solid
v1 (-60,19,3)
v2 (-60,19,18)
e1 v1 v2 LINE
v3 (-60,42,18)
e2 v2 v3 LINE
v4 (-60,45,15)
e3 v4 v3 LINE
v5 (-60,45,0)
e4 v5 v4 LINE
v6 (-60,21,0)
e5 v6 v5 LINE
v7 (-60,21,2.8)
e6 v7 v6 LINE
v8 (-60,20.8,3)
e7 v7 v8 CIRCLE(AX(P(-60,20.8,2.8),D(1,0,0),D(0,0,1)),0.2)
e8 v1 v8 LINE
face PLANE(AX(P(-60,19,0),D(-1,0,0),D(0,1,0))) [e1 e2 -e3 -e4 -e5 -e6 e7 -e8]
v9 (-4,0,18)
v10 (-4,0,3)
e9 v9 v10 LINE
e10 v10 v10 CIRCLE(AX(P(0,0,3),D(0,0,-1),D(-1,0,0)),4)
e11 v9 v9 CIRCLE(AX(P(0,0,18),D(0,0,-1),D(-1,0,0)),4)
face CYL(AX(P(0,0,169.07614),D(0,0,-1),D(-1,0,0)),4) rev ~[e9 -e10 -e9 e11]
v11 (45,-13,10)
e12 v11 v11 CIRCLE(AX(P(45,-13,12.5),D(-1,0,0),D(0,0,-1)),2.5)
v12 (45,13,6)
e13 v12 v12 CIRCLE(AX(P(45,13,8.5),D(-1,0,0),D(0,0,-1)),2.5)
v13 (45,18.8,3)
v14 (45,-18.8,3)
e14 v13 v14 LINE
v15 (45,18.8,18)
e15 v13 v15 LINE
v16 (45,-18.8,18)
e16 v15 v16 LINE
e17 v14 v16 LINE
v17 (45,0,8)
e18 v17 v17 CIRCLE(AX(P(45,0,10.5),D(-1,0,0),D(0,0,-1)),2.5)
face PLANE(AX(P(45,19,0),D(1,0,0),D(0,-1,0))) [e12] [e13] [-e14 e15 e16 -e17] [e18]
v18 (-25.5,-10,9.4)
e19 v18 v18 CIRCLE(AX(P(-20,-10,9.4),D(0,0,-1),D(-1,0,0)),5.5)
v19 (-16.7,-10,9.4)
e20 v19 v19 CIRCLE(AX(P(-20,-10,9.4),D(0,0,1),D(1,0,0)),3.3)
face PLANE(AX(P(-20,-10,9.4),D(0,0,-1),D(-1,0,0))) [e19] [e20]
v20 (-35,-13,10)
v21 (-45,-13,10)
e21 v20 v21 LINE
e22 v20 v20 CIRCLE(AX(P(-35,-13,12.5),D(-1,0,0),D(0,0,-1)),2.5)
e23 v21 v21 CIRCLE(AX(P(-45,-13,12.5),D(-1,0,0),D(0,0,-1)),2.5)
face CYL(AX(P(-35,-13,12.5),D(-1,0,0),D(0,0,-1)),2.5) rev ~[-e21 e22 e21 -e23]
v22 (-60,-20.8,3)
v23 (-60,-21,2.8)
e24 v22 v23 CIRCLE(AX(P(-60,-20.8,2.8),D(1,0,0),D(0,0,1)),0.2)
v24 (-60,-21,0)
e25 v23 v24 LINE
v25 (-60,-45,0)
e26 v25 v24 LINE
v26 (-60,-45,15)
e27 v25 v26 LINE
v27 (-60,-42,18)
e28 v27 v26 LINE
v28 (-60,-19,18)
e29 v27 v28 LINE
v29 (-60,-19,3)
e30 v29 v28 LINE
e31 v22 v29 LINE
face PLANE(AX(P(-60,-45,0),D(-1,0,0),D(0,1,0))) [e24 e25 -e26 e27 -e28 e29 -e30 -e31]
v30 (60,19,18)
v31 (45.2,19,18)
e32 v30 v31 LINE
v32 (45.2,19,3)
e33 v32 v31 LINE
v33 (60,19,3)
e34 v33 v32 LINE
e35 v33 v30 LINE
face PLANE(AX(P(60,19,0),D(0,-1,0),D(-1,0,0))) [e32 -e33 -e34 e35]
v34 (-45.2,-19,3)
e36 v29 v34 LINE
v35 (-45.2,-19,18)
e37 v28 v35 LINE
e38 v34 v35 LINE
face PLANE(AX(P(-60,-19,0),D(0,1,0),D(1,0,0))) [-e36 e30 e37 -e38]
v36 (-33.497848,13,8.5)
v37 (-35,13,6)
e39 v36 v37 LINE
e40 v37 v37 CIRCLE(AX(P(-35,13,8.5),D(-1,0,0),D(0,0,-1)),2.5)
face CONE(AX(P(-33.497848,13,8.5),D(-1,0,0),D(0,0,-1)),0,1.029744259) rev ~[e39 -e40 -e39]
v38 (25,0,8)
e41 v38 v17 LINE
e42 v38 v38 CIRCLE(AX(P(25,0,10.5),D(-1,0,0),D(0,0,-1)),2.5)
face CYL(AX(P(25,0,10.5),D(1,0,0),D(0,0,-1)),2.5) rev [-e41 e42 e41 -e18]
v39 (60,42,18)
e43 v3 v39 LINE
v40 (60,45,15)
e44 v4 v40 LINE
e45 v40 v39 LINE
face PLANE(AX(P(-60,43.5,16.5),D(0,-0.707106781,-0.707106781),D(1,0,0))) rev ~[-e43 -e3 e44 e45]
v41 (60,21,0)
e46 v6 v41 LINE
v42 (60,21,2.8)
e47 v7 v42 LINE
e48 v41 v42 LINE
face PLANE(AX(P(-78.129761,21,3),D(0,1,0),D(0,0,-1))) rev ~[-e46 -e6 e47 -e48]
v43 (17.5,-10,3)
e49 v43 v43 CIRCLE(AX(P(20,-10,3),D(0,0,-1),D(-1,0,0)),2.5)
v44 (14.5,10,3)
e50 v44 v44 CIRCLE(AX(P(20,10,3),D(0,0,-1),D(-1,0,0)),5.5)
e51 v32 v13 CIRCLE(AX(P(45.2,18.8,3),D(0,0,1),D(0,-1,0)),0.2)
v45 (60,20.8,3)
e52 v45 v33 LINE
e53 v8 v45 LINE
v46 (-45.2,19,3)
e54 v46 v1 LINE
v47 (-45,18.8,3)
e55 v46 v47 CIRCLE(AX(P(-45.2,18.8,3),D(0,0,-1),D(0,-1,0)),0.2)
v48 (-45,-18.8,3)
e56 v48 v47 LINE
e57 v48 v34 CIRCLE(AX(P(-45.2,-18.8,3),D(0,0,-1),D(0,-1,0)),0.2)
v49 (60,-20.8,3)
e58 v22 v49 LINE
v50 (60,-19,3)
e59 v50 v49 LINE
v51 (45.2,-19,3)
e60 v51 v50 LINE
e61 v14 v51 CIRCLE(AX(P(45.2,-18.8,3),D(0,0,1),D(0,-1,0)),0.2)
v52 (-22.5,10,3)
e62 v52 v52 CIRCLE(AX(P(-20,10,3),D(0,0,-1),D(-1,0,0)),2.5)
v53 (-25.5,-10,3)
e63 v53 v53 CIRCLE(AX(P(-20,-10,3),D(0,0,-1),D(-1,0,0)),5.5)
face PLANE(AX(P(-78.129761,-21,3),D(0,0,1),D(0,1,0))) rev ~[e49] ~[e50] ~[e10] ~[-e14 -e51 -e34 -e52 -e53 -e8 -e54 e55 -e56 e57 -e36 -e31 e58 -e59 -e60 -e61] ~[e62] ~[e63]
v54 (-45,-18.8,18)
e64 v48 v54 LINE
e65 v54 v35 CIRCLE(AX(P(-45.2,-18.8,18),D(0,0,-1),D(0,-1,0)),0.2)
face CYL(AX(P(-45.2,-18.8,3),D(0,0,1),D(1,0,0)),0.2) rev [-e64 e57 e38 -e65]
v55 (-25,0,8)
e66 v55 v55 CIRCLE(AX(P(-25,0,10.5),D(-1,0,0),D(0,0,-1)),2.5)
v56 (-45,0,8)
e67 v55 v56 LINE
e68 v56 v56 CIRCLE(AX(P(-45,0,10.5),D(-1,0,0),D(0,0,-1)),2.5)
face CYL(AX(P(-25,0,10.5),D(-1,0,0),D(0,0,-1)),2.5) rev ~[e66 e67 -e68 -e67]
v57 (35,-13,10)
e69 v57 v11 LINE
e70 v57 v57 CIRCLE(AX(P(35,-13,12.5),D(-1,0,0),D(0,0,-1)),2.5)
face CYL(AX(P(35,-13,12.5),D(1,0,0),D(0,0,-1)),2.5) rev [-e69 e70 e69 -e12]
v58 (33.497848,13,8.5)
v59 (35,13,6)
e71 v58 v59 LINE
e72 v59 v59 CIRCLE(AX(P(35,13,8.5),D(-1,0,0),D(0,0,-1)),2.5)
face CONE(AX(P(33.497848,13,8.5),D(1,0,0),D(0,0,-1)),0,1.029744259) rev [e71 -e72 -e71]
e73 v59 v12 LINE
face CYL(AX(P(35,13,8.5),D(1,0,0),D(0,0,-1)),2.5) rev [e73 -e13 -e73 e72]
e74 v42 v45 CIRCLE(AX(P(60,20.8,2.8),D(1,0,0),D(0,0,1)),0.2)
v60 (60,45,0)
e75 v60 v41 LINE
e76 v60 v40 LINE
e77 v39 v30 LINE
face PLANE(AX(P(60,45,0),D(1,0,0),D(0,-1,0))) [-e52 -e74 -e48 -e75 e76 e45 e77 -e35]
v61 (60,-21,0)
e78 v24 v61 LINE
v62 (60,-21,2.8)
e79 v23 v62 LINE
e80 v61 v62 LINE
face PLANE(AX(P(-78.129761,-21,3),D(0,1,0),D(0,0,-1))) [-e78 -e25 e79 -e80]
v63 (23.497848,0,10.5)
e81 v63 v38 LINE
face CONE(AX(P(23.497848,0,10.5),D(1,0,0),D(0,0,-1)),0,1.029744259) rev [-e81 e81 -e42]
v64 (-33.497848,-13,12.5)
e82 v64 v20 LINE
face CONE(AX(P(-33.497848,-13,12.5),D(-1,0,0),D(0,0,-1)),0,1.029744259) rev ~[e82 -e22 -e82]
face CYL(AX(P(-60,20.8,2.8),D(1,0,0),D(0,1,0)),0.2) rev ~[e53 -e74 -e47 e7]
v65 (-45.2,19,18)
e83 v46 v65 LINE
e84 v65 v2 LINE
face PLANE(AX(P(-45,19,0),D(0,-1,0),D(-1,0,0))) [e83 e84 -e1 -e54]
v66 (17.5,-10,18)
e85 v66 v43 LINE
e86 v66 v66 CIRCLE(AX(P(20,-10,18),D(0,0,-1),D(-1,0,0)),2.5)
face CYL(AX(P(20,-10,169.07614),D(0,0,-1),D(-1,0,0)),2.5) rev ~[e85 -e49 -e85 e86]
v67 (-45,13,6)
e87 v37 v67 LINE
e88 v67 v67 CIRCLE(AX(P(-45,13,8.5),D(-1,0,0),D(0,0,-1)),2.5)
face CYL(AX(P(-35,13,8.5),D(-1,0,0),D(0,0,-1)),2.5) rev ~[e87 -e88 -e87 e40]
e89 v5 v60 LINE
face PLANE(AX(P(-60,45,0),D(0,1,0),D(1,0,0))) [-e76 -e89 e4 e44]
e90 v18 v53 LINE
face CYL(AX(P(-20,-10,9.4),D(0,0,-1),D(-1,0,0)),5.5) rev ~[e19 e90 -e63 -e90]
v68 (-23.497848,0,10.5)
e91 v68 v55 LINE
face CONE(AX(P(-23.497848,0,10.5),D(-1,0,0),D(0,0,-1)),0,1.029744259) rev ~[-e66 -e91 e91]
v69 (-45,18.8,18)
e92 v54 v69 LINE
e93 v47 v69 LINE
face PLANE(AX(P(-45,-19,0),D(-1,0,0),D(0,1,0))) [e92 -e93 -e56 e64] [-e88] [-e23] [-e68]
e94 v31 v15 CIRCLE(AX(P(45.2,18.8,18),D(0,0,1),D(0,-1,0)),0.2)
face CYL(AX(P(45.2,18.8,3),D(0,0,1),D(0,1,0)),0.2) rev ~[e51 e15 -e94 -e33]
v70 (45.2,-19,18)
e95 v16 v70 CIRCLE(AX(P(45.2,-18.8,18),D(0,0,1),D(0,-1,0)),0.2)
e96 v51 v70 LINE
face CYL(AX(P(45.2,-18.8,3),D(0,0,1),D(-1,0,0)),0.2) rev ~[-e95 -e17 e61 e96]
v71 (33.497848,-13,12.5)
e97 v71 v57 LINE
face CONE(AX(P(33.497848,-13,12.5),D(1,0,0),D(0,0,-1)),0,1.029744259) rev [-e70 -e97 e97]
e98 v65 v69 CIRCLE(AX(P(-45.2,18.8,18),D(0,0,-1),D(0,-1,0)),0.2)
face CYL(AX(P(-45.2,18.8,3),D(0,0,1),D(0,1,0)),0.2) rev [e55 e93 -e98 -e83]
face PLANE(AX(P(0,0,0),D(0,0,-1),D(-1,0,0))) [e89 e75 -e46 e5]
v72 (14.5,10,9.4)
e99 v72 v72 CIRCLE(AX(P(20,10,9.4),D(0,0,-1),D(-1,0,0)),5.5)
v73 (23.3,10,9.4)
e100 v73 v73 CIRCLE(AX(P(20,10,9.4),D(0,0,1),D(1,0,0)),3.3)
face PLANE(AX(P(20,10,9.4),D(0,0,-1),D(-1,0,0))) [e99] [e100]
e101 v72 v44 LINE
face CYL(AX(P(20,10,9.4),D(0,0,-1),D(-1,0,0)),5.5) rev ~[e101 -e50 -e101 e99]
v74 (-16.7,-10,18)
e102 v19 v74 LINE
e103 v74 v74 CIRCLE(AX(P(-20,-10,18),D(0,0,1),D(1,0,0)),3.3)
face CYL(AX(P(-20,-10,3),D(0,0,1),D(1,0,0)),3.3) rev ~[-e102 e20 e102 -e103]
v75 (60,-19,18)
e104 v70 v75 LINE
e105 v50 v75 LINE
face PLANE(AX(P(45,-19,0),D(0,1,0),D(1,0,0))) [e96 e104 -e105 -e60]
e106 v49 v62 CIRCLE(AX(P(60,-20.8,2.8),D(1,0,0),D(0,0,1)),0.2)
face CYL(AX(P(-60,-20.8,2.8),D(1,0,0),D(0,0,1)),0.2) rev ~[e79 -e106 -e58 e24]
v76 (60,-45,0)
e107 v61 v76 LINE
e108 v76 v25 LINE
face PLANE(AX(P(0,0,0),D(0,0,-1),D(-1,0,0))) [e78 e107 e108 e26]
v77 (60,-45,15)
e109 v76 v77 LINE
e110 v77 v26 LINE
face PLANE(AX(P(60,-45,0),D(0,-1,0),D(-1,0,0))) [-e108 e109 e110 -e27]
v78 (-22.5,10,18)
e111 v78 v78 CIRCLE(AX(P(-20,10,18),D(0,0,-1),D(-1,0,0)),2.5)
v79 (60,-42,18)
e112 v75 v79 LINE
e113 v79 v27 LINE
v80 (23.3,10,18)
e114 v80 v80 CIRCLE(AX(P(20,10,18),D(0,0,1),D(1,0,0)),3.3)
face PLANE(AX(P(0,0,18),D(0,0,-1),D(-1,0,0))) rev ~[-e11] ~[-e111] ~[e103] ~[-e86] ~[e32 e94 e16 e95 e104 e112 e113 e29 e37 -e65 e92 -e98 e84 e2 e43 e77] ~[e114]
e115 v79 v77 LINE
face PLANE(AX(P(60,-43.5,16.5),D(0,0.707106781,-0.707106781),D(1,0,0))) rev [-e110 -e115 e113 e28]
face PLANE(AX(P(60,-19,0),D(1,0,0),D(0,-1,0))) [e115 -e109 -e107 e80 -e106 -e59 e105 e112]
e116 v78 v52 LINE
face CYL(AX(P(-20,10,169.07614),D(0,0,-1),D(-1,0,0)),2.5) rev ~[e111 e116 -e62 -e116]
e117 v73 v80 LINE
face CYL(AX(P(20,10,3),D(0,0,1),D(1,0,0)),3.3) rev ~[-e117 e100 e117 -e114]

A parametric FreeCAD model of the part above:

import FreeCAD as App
import Part
import Sketcher

V = App.Vector
Q = App.Units.Quantity


def edges_at(feature, points):
    """Names of the edges that pass closest to the given points."""
    edges = feature.Shape.Edges
    near = lambda p: min(range(len(edges)), key=lambda i: edges[i].distToShape(Part.Vertex(*p))[0])
    return sorted({f"Edge{near(p) + 1}" for p in points})

doc = App.newDocument("Part")
body = doc.addObject("PartDesign::Body", "Body")

# Sketch on XY plane
sketch1 = body.newObject("Sketcher::SketchObject", "Sketch")
sketch1.AttachmentSupport = (doc.getObject("XY_Plane"), [""])
sketch1.MapMode = "FlatFace"
sketch1.addGeometry(Part.LineSegment(V(60, 45, 0), V(-60, 45, 0)), False)
sketch1.addGeometry(Part.LineSegment(V(-60, 45, 0), V(-60, 19, 0)), False)
sketch1.addGeometry(Part.LineSegment(V(-60, 19, 0), V(-45, 19, 0)), False)
sketch1.addGeometry(Part.LineSegment(V(-45, 19, 0), V(-45, -19, 0)), False)
sketch1.addGeometry(Part.LineSegment(V(-45, -19, 0), V(-60, -19, 0)), False)
sketch1.addGeometry(Part.LineSegment(V(-60, -19, 0), V(-60, -45, 0)), False)
sketch1.addGeometry(Part.LineSegment(V(-60, -45, 0), V(60, -45, 0)), False)
sketch1.addGeometry(Part.LineSegment(V(60, -45, 0), V(60, -19, 0)), False)
sketch1.addGeometry(Part.LineSegment(V(60, -19, 0), V(45, -19, 0)), False)
sketch1.addGeometry(Part.LineSegment(V(45, -19, 0), V(45, 19, 0)), False)
sketch1.addGeometry(Part.LineSegment(V(45, 19, 0), V(60, 19, 0)), False)
sketch1.addGeometry(Part.LineSegment(V(60, 19, 0), V(60, 45, 0)), False)
sketch1.addConstraint(Sketcher.Constraint("Coincident", 0, 2, 1, 1))
sketch1.addConstraint(Sketcher.Constraint("Coincident", 1, 2, 2, 1))
sketch1.addConstraint(Sketcher.Constraint("Coincident", 2, 2, 3, 1))
sketch1.addConstraint(Sketcher.Constraint("Coincident", 3, 2, 4, 1))
sketch1.addConstraint(Sketcher.Constraint("Coincident", 4, 2, 5, 1))
sketch1.addConstraint(Sketcher.Constraint("Coincident", 5, 2, 6, 1))
sketch1.addConstraint(Sketcher.Constraint("Coincident", 6, 2, 7, 1))
sketch1.addConstraint(Sketcher.Constraint("Coincident", 7, 2, 8, 1))
sketch1.addConstraint(Sketcher.Constraint("Coincident", 8, 2, 9, 1))
sketch1.addConstraint(Sketcher.Constraint("Coincident", 9, 2, 10, 1))
sketch1.addConstraint(Sketcher.Constraint("Coincident", 10, 2, 11, 1))
sketch1.addConstraint(Sketcher.Constraint("Coincident", 11, 2, 0, 1))
sketch1.addConstraint(Sketcher.Constraint("Horizontal", 0))
sketch1.addConstraint(Sketcher.Constraint("Vertical", 1))
sketch1.addConstraint(Sketcher.Constraint("Horizontal", 2))
sketch1.addConstraint(Sketcher.Constraint("Vertical", 3))
sketch1.addConstraint(Sketcher.Constraint("Horizontal", 4))
sketch1.addConstraint(Sketcher.Constraint("Vertical", 5))
sketch1.addConstraint(Sketcher.Constraint("Horizontal", 6))
sketch1.addConstraint(Sketcher.Constraint("Vertical", 7))
sketch1.addConstraint(Sketcher.Constraint("Horizontal", 8))
sketch1.addConstraint(Sketcher.Constraint("Vertical", 9))
sketch1.addConstraint(Sketcher.Constraint("Horizontal", 10))
sketch1.addConstraint(Sketcher.Constraint("Vertical", 11))
sketch1.addConstraint(Sketcher.Constraint("Symmetric", 0, 2, 6, 2, -1, 1))
sketch1.addConstraint(Sketcher.Constraint("Symmetric", 2, 2, 8, 2, -1, 1))
sketch1.addConstraint(Sketcher.Constraint("Symmetric", 4, 2, 10, 2, -1, 1))
sketch1.addConstraint(Sketcher.Constraint("Symmetric", 4, 2, 7, 2, -2))
sketch1.addConstraint(Sketcher.Constraint("DistanceX", 0, 2, 0, 1, 120.0))
sketch1.addConstraint(Sketcher.Constraint("DistanceX", 2, 1, 2, 2, 15.0))
sketch1.addConstraint(Sketcher.Constraint("DistanceY", 1, 2, 1, 1, 26.0))
sketch1.addConstraint(Sketcher.Constraint("DistanceY", 3, 2, 3, 1, 38.0))
pad1 = body.newObject("PartDesign::Pad", "Pad")
pad1.Profile = sketch1
pad1.Length = 18

# Sketch on YZ plane
sketch2 = body.newObject("Sketcher::SketchObject", "Sketch001")
sketch2.AttachmentSupport = (doc.getObject("YZ_Plane"), [""])
sketch2.MapMode = "FlatFace"
sketch2.addGeometry(Part.LineSegment(V(21, 3, 0), V(-21, 3, 0)), False)
sketch2.addGeometry(Part.LineSegment(V(-21, 3, 0), V(-21, 0, 0)), False)
sketch2.addGeometry(Part.LineSegment(V(-21, 0, 0), V(21, 0, 0)), False)
sketch2.addGeometry(Part.LineSegment(V(21, 0, 0), V(21, 3, 0)), False)
sketch2.addConstraint(Sketcher.Constraint("Coincident", 0, 2, 1, 1))
sketch2.addConstraint(Sketcher.Constraint("Coincident", 1, 2, 2, 1))
sketch2.addConstraint(Sketcher.Constraint("Coincident", 2, 2, 3, 1))
sketch2.addConstraint(Sketcher.Constraint("Coincident", 3, 2, 0, 1))
sketch2.addConstraint(Sketcher.Constraint("Horizontal", 0))
sketch2.addConstraint(Sketcher.Constraint("Vertical", 1))
sketch2.addConstraint(Sketcher.Constraint("Horizontal", 2))
sketch2.addConstraint(Sketcher.Constraint("Vertical", 3))
sketch2.addConstraint(Sketcher.Constraint("Symmetric", 1, 2, 2, 2, -1, 1))
sketch2.addConstraint(Sketcher.Constraint("DistanceX", 0, 2, 0, 1, 42.0))
sketch2.addConstraint(Sketcher.Constraint("DistanceY", 1, 2, 1, 1, 3.0))
pocket1 = body.newObject("PartDesign::Pocket", "Pocket")
pocket1.Profile = sketch2
pocket1.Type = "ThroughAll"
pocket1.Midplane = True

# Sketch on XZ plane
sketch3 = body.newObject("Sketcher::SketchObject", "Sketch002")
sketch3.AttachmentSupport = (doc.getObject("XZ_Plane"), [""])
sketch3.MapMode = "FlatFace"
sketch3.addGeometry(Part.LineSegment(V(23.5, 10.5, 0), V(45, 10.5, 0)), False)
sketch3.addGeometry(Part.LineSegment(V(45, 10.5, 0), V(45, 8, 0)), False)
sketch3.addGeometry(Part.LineSegment(V(45, 8, 0), V(25, 8, 0)), False)
sketch3.addGeometry(Part.LineSegment(V(25, 8, 0), V(23.5, 10.5, 0)), False)
sketch3.addGeometry(Part.LineSegment(V(45, 10.5, 0), V(23.5, 10.5, 0)), True)  # axis
sketch3.addConstraint(Sketcher.Constraint("Coincident", 0, 2, 1, 1))
sketch3.addConstraint(Sketcher.Constraint("Coincident", 1, 2, 2, 1))
sketch3.addConstraint(Sketcher.Constraint("Coincident", 2, 2, 3, 1))
sketch3.addConstraint(Sketcher.Constraint("Coincident", 3, 2, 0, 1))
sketch3.addConstraint(Sketcher.Constraint("Horizontal", 0))
sketch3.addConstraint(Sketcher.Constraint("Vertical", 1))
sketch3.addConstraint(Sketcher.Constraint("Horizontal", 2))
sketch3.addConstraint(Sketcher.Constraint("Horizontal", 4))
sketch3.addConstraint(Sketcher.Constraint("Coincident", 4, 1, 0, 2))
sketch3.addConstraint(Sketcher.Constraint("Equal", 0, 4))
sketch3.addConstraint(Sketcher.Constraint("DistanceX", 2, 2, 2, 1, 20.0))
sketch3.addConstraint(Sketcher.Constraint("Angle", 3, Q("121 deg")))
sketch3.addConstraint(Sketcher.Constraint("DistanceY", 1, 2, 1, 1, 2.5))
sketch3.addConstraint(Sketcher.Constraint("DistanceX", -1, 1, 0, 2, 45.0))
sketch3.addConstraint(Sketcher.Constraint("DistanceY", -1, 1, 1, 2, 8.0))
groove = body.newObject("PartDesign::Groove", "Groove")
groove.Profile = sketch3
groove.ReferenceAxis = (sketch3, ["Axis0"])
groove.Angle = 360

# Sketch on XY plane
sketch4 = body.newObject("Sketcher::SketchObject", "Sketch003")
sketch4.AttachmentSupport = (doc.getObject("XY_Plane"), [""])
sketch4.MapMode = "FlatFace"
sketch4.AttachmentOffset = App.Placement(V(0, 0, 18), App.Rotation())
sketch4.addGeometry(Part.Circle(V(0, 0, 0), V(0, 0, 1), 4), False)
sketch4.addConstraint(Sketcher.Constraint("Coincident", 0, 3, -1, 1))
sketch4.addConstraint(Sketcher.Constraint("Diameter", 0, 8.0))
doc.recompute()
hole = body.newObject("PartDesign::Hole", "Hole")
hole.Profile = sketch4
hole.ThreadType = "None"
hole.Diameter = 8
hole.DepthType = "ThroughAll"

# Sketch on XY plane
sketch5 = body.newObject("Sketcher::SketchObject", "Sketch004")
sketch5.AttachmentSupport = (doc.getObject("XY_Plane"), [""])
sketch5.MapMode = "FlatFace"
sketch5.AttachmentOffset = App.Placement(V(0, 0, 18), App.Rotation())
sketch5.addGeometry(Part.Circle(V(20, -10, 0), V(0, 0, 1), 2.5), False)
sketch5.addGeometry(Part.Circle(V(-20, 10, 0), V(0, 0, 1), 2.5), False)
sketch5.addConstraint(Sketcher.Constraint("Equal", 0, 1))
sketch5.addConstraint(Sketcher.Constraint("Symmetric", 0, 3, 1, 3, -1, 1))
sketch5.addConstraint(Sketcher.Constraint("Diameter", 0, 5.0))
sketch5.addConstraint(Sketcher.Constraint("DistanceX", -1, 1, 0, 3, 20.0))
sketch5.addConstraint(Sketcher.Constraint("DistanceY", 0, 3, -1, 1, 10.0))
doc.recompute()
hole2 = body.newObject("PartDesign::Hole", "Hole001")
hole2.Profile = sketch5
hole2.ThreadType = "None"
hole2.Diameter = 5
hole2.DepthType = "ThroughAll"

# Sketch on XY plane
sketch6 = body.newObject("Sketcher::SketchObject", "Sketch005")
sketch6.AttachmentSupport = (doc.getObject("XY_Plane"), [""])
sketch6.MapMode = "FlatFace"
sketch6.AttachmentOffset = App.Placement(V(0, 0, 3), App.Rotation())
sketch6.addGeometry(Part.Circle(V(20, 10, 0), V(0, 0, 1), 3.3), False)
sketch6.addGeometry(Part.Circle(V(-20, -10, 0), V(0, 0, 1), 3.3), False)
sketch6.addConstraint(Sketcher.Constraint("Equal", 0, 1))
sketch6.addConstraint(Sketcher.Constraint("Symmetric", 0, 3, 1, 3, -1, 1))
sketch6.addConstraint(Sketcher.Constraint("Diameter", 0, 6.6))
sketch6.addConstraint(Sketcher.Constraint("DistanceX", -1, 1, 0, 3, 20.0))
sketch6.addConstraint(Sketcher.Constraint("DistanceY", -1, 1, 0, 3, 10.0))
doc.recompute()
hole3 = body.newObject("PartDesign::Hole", "Hole002")
hole3.Profile = sketch6
hole3.ThreadType = "None"
hole3.Diameter = 6.6
hole3.DepthType = "ThroughAll"
hole3.HoleCutType = "Counterbore"
hole3.HoleCutDiameter = 11
hole3.HoleCutDepth = 6.4
hole3.Reversed = True

# Sketch on XZ plane
sketch7 = body.newObject("Sketcher::SketchObject", "Sketch006")
sketch7.AttachmentSupport = (doc.getObject("XZ_Plane"), [""])
sketch7.MapMode = "FlatFace"
sketch7.AttachmentOffset = App.Placement(V(0, 0, 13), App.Rotation())
sketch7.addGeometry(Part.LineSegment(V(33.5, 12.5, 0), V(45, 12.5, 0)), False)
sketch7.addGeometry(Part.LineSegment(V(45, 12.5, 0), V(45, 10, 0)), False)
sketch7.addGeometry(Part.LineSegment(V(45, 10, 0), V(35, 10, 0)), False)
sketch7.addGeometry(Part.LineSegment(V(35, 10, 0), V(33.5, 12.5, 0)), False)
sketch7.addGeometry(Part.LineSegment(V(45, 12.5, 0), V(33.5, 12.5, 0)), True)  # axis
sketch7.addConstraint(Sketcher.Constraint("Coincident", 0, 2, 1, 1))
sketch7.addConstraint(Sketcher.Constraint("Coincident", 1, 2, 2, 1))
sketch7.addConstraint(Sketcher.Constraint("Coincident", 2, 2, 3, 1))
sketch7.addConstraint(Sketcher.Constraint("Coincident", 3, 2, 0, 1))
sketch7.addConstraint(Sketcher.Constraint("Horizontal", 0))
sketch7.addConstraint(Sketcher.Constraint("Vertical", 1))
sketch7.addConstraint(Sketcher.Constraint("Horizontal", 2))
sketch7.addConstraint(Sketcher.Constraint("Horizontal", 4))
sketch7.addConstraint(Sketcher.Constraint("Coincident", 4, 1, 0, 2))
sketch7.addConstraint(Sketcher.Constraint("Equal", 0, 4))
sketch7.addConstraint(Sketcher.Constraint("DistanceX", 2, 2, 2, 1, 10.0))
sketch7.addConstraint(Sketcher.Constraint("Angle", 3, Q("121 deg")))
sketch7.addConstraint(Sketcher.Constraint("DistanceY", 1, 2, 1, 1, 2.5))
sketch7.addConstraint(Sketcher.Constraint("DistanceX", -1, 1, 0, 2, 45.0))
sketch7.addConstraint(Sketcher.Constraint("DistanceY", -1, 1, 1, 2, 10.0))
groove2 = body.newObject("PartDesign::Groove", "Groove001")
groove2.Profile = sketch7
groove2.ReferenceAxis = (sketch7, ["Axis0"])
groove2.Angle = 360
doc.recompute()

datumline = body.newObject("PartDesign::Line", "DatumLine")
datumline.Placement = App.Placement(V(0, 0, 0), App.Rotation(V(0, 0, 1), V(0, 0.988371698, -0.152057184)))
linearpattern = body.newObject("PartDesign::LinearPattern", "LinearPattern")
linearpattern.Originals = [groove2]
linearpattern.Direction = (datumline, [""])
linearpattern.Mode = "offset"
linearpattern.Offset = 26.305893
linearpattern.Occurrences = 2
body.Tip = linearpattern
doc.recompute()

chamfer = body.newObject("PartDesign::Chamfer", "Chamfer")
chamfer.Base = (linearpattern, edges_at(linearpattern, [(0, 45, 18), (0, -45, 18)]))
chamfer.Size = 3
doc.recompute()

fillet = body.newObject("PartDesign::Fillet", "Fillet")
fillet.Base = (chamfer, edges_at(chamfer, [
    (45, -19, 10.5),
    (45, 19, 10.5),
    (-45, 19, 10.5),
    (-45, -19, 10.5),
    (0, -21, 3),
    (0, 21, 3),
]))
fillet.Radius = 0.2
doc.recompute()

mirrored = body.newObject("PartDesign::Mirrored", "Mirrored")
mirrored.Originals = [groove, groove2]
mirrored.MirrorPlane = (doc.getObject("YZ_Plane"), [""])
body.Tip = mirrored

# Sketch on XZ plane
sketch8 = body.newObject("Sketcher::SketchObject", "Sketch007")
sketch8.AttachmentSupport = (doc.getObject("XZ_Plane"), [""])
sketch8.MapMode = "FlatFace"
sketch8.AttachmentOffset = App.Placement(V(0, 0, -13), App.Rotation())
sketch8.addGeometry(Part.LineSegment(V(-45, 8.5, 0), V(-33.5, 8.5, 0)), False)
sketch8.addGeometry(Part.LineSegment(V(-33.5, 8.5, 0), V(-35, 6, 0)), False)
sketch8.addGeometry(Part.LineSegment(V(-35, 6, 0), V(-45, 6, 0)), False)
sketch8.addGeometry(Part.LineSegment(V(-45, 6, 0), V(-45, 8.5, 0)), False)
sketch8.addGeometry(Part.LineSegment(V(-33.5, 8.5, 0), V(-45, 8.5, 0)), True)  # axis
sketch8.addConstraint(Sketcher.Constraint("Coincident", 0, 2, 1, 1))
sketch8.addConstraint(Sketcher.Constraint("Coincident", 1, 2, 2, 1))
sketch8.addConstraint(Sketcher.Constraint("Coincident", 2, 2, 3, 1))
sketch8.addConstraint(Sketcher.Constraint("Coincident", 3, 2, 0, 1))
sketch8.addConstraint(Sketcher.Constraint("Horizontal", 0))
sketch8.addConstraint(Sketcher.Constraint("Horizontal", 2))
sketch8.addConstraint(Sketcher.Constraint("Vertical", 3))
sketch8.addConstraint(Sketcher.Constraint("Horizontal", 4))
sketch8.addConstraint(Sketcher.Constraint("Coincident", 4, 1, 0, 2))
sketch8.addConstraint(Sketcher.Constraint("Vertical", 2, 2, 4, 2))
sketch8.addConstraint(Sketcher.Constraint("DistanceX", 2, 2, 2, 1, 10.0))
sketch8.addConstraint(Sketcher.Constraint("Angle", 1, Q("-121 deg")))
sketch8.addConstraint(Sketcher.Constraint("DistanceY", 3, 1, 3, 2, 2.5))
sketch8.addConstraint(Sketcher.Constraint("DistanceX", 1, 2, -1, 1, 35.0))
sketch8.addConstraint(Sketcher.Constraint("DistanceY", -1, 1, 1, 2, 6.0))
groove3 = body.newObject("PartDesign::Groove", "Groove002")
groove3.Profile = sketch8
groove3.ReferenceAxis = (sketch8, ["Axis0"])
groove3.Angle = 360

doc.recompute()
